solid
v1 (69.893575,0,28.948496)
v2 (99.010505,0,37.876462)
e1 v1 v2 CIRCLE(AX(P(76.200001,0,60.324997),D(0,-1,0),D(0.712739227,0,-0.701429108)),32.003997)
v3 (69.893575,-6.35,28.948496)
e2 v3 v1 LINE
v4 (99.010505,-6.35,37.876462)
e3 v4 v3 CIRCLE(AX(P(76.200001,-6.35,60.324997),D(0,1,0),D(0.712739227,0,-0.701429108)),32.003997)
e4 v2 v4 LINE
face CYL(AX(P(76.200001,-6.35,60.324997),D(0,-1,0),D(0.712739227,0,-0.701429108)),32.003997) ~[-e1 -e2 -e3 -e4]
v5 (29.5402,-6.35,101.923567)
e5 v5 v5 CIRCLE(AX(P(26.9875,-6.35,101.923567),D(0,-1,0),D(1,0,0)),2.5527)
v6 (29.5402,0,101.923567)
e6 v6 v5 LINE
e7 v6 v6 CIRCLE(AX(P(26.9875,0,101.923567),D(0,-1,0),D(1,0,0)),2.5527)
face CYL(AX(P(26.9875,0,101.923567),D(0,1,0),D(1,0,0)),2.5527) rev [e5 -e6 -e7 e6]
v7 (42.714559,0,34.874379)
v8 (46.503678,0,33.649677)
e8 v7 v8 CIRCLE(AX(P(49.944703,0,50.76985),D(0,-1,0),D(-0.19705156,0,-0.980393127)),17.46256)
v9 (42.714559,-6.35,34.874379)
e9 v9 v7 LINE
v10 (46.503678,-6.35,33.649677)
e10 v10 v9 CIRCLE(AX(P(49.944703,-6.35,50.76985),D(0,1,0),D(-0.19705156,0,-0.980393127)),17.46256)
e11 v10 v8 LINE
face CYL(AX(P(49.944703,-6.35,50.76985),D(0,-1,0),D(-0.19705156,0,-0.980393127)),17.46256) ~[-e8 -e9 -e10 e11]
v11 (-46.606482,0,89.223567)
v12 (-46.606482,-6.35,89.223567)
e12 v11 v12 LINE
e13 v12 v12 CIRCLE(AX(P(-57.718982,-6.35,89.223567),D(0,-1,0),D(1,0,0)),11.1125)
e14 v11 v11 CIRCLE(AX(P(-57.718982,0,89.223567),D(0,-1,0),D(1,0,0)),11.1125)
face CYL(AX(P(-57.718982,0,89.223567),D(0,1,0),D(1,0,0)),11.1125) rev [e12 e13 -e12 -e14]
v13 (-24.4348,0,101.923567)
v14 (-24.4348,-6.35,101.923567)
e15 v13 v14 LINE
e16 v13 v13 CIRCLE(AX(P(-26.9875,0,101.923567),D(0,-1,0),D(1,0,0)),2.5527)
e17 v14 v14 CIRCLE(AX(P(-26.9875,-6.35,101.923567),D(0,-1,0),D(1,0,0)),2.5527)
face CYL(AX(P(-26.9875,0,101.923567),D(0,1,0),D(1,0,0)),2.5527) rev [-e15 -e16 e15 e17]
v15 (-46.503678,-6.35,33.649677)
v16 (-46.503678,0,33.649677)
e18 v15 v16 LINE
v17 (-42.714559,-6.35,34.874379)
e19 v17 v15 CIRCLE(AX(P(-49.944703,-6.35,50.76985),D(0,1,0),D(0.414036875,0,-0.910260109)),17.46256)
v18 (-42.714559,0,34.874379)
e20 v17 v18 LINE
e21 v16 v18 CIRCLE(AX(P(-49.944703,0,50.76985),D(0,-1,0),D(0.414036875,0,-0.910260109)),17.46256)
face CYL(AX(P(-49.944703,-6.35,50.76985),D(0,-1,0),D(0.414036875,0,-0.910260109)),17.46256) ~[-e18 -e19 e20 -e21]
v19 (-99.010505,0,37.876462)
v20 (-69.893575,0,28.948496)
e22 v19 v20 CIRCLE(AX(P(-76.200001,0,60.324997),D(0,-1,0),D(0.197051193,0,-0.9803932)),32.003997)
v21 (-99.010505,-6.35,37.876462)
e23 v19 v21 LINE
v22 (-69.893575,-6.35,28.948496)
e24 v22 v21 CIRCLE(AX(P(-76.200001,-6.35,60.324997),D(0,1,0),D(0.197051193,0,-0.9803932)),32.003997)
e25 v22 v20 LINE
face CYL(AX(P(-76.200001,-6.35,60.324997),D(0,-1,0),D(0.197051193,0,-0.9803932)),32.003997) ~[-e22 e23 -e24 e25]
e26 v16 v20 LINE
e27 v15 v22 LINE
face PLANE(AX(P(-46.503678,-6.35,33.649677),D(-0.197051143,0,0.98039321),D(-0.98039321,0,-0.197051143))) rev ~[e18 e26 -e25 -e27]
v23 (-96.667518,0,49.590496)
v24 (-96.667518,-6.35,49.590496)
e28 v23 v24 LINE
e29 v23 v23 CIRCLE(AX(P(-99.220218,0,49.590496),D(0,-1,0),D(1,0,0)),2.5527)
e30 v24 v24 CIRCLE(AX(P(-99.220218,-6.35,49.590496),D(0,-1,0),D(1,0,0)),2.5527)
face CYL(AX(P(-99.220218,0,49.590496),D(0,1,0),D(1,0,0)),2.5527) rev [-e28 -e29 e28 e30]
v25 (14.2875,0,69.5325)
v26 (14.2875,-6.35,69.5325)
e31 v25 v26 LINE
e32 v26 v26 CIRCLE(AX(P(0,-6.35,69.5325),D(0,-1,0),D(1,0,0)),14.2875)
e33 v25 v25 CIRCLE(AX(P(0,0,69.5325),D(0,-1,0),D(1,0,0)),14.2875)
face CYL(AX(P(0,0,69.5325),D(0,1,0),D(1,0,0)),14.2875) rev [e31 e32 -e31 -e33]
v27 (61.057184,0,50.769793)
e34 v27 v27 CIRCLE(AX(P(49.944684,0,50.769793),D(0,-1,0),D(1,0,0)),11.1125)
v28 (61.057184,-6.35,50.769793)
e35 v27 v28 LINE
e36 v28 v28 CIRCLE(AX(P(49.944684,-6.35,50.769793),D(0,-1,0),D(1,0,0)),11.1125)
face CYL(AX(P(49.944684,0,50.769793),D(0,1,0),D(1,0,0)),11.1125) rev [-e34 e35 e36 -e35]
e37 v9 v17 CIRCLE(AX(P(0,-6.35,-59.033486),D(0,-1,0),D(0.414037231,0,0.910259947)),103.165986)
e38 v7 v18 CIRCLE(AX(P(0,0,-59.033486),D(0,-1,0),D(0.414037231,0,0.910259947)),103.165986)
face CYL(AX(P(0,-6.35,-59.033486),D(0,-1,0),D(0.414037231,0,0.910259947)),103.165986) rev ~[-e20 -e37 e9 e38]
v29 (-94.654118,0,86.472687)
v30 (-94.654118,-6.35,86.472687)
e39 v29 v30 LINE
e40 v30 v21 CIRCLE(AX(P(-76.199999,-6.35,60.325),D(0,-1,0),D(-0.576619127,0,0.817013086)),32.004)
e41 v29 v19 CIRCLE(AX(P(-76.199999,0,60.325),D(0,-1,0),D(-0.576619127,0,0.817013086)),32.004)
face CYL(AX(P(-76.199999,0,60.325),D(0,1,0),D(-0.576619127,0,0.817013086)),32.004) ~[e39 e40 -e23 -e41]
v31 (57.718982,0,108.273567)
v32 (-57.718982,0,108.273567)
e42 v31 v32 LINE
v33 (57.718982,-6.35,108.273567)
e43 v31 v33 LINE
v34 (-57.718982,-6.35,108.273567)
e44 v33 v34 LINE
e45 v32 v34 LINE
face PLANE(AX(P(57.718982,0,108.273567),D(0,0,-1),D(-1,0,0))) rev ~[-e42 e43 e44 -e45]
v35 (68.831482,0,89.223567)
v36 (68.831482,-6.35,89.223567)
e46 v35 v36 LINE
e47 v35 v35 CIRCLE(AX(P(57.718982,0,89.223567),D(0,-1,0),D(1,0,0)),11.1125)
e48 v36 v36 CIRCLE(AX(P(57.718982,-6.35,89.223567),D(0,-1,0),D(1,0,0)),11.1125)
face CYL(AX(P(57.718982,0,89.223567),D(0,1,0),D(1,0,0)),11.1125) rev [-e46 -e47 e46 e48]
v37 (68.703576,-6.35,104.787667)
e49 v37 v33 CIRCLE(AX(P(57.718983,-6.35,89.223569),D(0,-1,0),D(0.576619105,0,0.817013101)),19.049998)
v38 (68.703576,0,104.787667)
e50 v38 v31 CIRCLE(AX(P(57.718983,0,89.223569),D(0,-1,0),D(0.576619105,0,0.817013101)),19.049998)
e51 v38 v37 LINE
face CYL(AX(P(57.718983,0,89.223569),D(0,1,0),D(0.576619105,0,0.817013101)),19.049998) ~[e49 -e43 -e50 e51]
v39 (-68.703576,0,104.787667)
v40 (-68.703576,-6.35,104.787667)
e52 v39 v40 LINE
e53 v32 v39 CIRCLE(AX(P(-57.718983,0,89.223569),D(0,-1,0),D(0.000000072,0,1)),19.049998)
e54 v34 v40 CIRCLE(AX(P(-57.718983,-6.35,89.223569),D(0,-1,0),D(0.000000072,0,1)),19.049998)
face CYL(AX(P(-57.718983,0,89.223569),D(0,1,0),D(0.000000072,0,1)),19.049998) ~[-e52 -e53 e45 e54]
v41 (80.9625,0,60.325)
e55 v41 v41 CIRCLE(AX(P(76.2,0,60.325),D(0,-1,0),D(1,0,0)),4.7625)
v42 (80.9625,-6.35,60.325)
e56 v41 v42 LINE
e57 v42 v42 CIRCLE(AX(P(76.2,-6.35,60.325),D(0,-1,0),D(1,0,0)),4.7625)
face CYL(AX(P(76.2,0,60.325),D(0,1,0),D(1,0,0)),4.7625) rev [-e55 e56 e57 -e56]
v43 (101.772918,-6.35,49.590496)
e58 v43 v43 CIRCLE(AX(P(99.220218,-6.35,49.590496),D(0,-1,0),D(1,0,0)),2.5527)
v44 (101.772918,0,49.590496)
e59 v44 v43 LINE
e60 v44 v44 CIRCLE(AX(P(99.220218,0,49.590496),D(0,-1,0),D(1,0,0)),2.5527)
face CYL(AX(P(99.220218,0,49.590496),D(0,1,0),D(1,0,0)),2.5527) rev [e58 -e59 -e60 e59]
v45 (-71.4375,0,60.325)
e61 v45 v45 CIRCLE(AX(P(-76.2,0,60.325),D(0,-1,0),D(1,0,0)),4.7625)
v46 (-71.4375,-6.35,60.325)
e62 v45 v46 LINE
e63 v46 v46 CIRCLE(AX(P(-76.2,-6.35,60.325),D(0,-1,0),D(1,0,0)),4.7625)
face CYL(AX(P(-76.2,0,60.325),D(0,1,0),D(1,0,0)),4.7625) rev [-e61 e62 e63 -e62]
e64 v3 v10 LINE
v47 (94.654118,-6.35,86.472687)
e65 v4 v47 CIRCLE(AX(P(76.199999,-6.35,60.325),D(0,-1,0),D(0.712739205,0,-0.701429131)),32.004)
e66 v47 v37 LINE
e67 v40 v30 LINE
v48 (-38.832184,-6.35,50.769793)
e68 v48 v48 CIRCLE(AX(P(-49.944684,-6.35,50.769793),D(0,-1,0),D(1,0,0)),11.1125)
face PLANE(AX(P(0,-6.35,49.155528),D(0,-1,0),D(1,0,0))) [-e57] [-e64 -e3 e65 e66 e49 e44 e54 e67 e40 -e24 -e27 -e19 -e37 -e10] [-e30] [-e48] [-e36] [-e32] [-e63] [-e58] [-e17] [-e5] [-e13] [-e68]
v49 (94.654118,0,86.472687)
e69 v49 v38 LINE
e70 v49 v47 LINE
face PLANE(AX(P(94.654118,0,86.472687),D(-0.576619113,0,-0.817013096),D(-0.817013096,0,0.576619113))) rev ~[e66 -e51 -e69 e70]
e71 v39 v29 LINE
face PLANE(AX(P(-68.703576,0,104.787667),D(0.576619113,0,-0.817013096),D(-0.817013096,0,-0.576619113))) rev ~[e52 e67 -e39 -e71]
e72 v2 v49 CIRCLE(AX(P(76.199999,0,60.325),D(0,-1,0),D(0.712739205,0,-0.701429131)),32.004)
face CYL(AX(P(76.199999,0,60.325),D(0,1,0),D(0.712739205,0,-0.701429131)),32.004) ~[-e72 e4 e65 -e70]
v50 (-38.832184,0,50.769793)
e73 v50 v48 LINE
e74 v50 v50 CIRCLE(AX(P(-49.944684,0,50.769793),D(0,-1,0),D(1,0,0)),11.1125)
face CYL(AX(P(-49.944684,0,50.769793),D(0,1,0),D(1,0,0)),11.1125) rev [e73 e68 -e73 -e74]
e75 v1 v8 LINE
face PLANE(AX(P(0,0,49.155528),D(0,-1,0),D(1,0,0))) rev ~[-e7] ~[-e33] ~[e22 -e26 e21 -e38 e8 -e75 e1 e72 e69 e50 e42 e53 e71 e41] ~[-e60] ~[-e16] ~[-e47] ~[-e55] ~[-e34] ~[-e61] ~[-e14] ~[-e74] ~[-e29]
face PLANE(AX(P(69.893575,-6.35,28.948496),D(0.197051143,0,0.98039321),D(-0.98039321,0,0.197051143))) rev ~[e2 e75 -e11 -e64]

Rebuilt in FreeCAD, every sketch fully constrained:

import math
import FreeCAD as App
import Part
import Sketcher

V = App.Vector
Q = App.Units.Quantity

doc = App.newDocument("Part")
params = doc.addObject("Spreadsheet::Sheet", "Params")
for row, (alias, value) in enumerate([
    ("sketch1_radius", "1.26 in"),
    ("sketch1_radius2", "0.7499999 in"),
    ("sketch1_diameter", "0.201 in"),
    ("sketch1_diameter2", "0.375 in"),
    ("sketch1_diameter3", "0.875 in"),
    ("pad1_length", "0.25 in"),
    ("sketch2_radius", "1.2599999 in"),
    ("pocket1_length", "1 in"),
], start=1):
    params.set(f"A{row}", alias)
    params.set(f"B{row}", "=" + value)
    params.setAlias(f"B{row}", alias)

body = doc.addObject("PartDesign::Body", "Body")

# Sketch on XZ plane
sketch1 = body.newObject("Sketcher::SketchObject", "Sketch")
sketch1.AttachmentSupport = (doc.getObject("XZ_Plane"), [""])
sketch1.MapMode = "FlatFace"
sketch1.addGeometry([
    Part.ArcOfCircle(Part.Circle(V(-76.199999, 60.325, 0), V(0, 0, 1), 32.004), math.radians(125.2131), math.radians(224.541776)),  # 0
    Part.LineSegment(V(-99.010505, 37.876462, 0), V(-43.757367, -18.267594, 0)),  # 1
    Part.ArcOfCircle(Part.Circle(V(-38.100003, -12.700004, 0), V(0, 0, 1), 7.937495), math.radians(-135.45823), math.radians(-97.317959)),  # 2
    Part.LineSegment(V(-39.111045, -20.572845, 0), V(-3.033135, -25.206036, 0)),  # 3
    Part.ArcOfCircle(Part.Circle(V(0, -1.587514, 0), V(0, 0, 1), 23.812486), math.radians(-97.317977), math.radians(-82.682023)),  # 4
    Part.LineSegment(V(3.033135, -25.206036, 0), V(39.111045, -20.572845, 0)),  # 5
    Part.ArcOfCircle(Part.Circle(V(38.100003, -12.700004, 0), V(0, 0, 1), 7.937495), math.radians(-82.682041), math.radians(-44.54177)),  # 6
    Part.LineSegment(V(43.757367, -18.267594, 0), V(99.010505, 37.876462, 0)),  # 7
    Part.ArcOfCircle(Part.Circle(V(76.199999, 60.325, 0), V(0, 0, 1), 32.004), math.radians(-44.541776), math.radians(54.7869)),  # 8
    Part.LineSegment(V(94.654118, 86.472687, 0), V(68.703576, 104.787667, 0)),  # 9
    Part.ArcOfCircle(Part.Circle(V(57.718983, 89.223569, 0), V(0, 0, 1), 19.049998), math.radians(54.786902), math.radians(90.000004)),  # 10
    Part.LineSegment(V(57.718982, 108.273567, 0), V(-57.718982, 108.273567, 0)),  # 11
    Part.ArcOfCircle(Part.Circle(V(-57.718983, 89.223569, 0), V(0, 0, 1), 19.049998), math.radians(89.999996), math.radians(125.213098)),  # 12
    Part.LineSegment(V(-68.703576, 104.787667, 0), V(-94.654118, 86.472687, 0)),  # 13
    Part.Circle(V(-38.1, -12.7, 0), V(0, 0, 1), 2.5527),  # 14
    Part.Circle(V(-38.1, 12.7, 0), V(0, 0, 1), 2.5527),  # 15
    Part.Circle(V(38.1, -12.7, 0), V(0, 0, 1), 2.5527),  # 16
    Part.Circle(V(38.1, 12.7, 0), V(0, 0, 1), 2.5527),  # 17
    Part.Circle(V(-99.220218, 49.590496, 0), V(0, 0, 1), 2.5527),  # 18
    Part.Circle(V(-76.2, 60.325, 0), V(0, 0, 1), 4.7625),  # 19
    Part.Circle(V(-49.944684, 50.769793, 0), V(0, 0, 1), 11.1125),  # 20
    Part.Circle(V(-57.718982, 89.223567, 0), V(0, 0, 1), 11.1125),  # 21
    Part.Circle(V(-26.9875, 101.923567, 0), V(0, 0, 1), 2.5527),  # 22
    Part.Circle(V(49.944684, 50.769793, 0), V(0, 0, 1), 11.1125),  # 23
    Part.Circle(V(0, 69.5325, 0), V(0, 0, 1), 14.2875),  # 24
    Part.Circle(V(99.220218, 49.590496, 0), V(0, 0, 1), 2.5527),  # 25
    Part.Circle(V(76.2, 60.325, 0), V(0, 0, 1), 4.7625),  # 26
    Part.Circle(V(26.9875, 101.923567, 0), V(0, 0, 1), 2.5527),  # 27
    Part.Circle(V(57.718982, 89.223567, 0), V(0, 0, 1), 11.1125),  # 28
], False)
sketch1.addConstraint([
    Sketcher.Constraint("Tangent", 0, 2, 1, 1),
    Sketcher.Constraint("Tangent", 1, 2, 2, 1),
    Sketcher.Constraint("Tangent", 2, 2, 3, 1),
    Sketcher.Constraint("Tangent", 3, 2, 4, 1),
    Sketcher.Constraint("Tangent", 4, 2, 5, 1),
    Sketcher.Constraint("Tangent", 5, 2, 6, 1),
    Sketcher.Constraint("Tangent", 6, 2, 7, 1),
    Sketcher.Constraint("Tangent", 7, 2, 8, 1),
    Sketcher.Constraint("Tangent", 8, 2, 9, 1),
    Sketcher.Constraint("Tangent", 9, 2, 10, 1),
    Sketcher.Constraint("Tangent", 10, 2, 11, 1),
    Sketcher.Constraint("Tangent", 11, 2, 12, 1),
    Sketcher.Constraint("Tangent", 12, 2, 13, 1),
    Sketcher.Constraint("Tangent", 13, 2, 0, 1),
    Sketcher.Constraint("Horizontal", 11),
    Sketcher.Constraint("Coincident", 14, 3, 2, 3),
    Sketcher.Constraint("Coincident", 16, 3, 6, 3),
    Sketcher.Constraint("Coincident", 19, 3, 0, 3),
    Sketcher.Constraint("Coincident", 21, 3, 12, 3),
    Sketcher.Constraint("Coincident", 26, 3, 8, 3),
    Sketcher.Constraint("Coincident", 28, 3, 10, 3),
    Sketcher.Constraint("Equal", 2, 6),
    Sketcher.Constraint("Equal", 0, 8),
    Sketcher.Constraint("Equal", 10, 12),
    Sketcher.Constraint("Equal", 14, 15),
    Sketcher.Constraint("Equal", 15, 16),
    Sketcher.Constraint("Equal", 16, 17),
    Sketcher.Constraint("Equal", 17, 18),
    Sketcher.Constraint("Equal", 20, 21),
    Sketcher.Constraint("Equal", 18, 22),
    Sketcher.Constraint("Equal", 21, 23),
    Sketcher.Constraint("Equal", 22, 25),
    Sketcher.Constraint("Equal", 19, 26),
    Sketcher.Constraint("Equal", 25, 27),
    Sketcher.Constraint("Equal", 23, 28),
    Sketcher.Constraint("Symmetric", 6, 3, 15, 3, -1, 1),
    Sketcher.Constraint("Symmetric", 2, 3, 17, 3, -1, 1),
    Sketcher.Constraint("Symmetric", 2, 3, 6, 3, -2),
    Sketcher.Constraint("Symmetric", 0, 3, 8, 3, -2),
    Sketcher.Constraint("Symmetric", 20, 3, 23, 3, -2),
    Sketcher.Constraint("Symmetric", 18, 3, 25, 3, -2),
    Sketcher.Constraint("Symmetric", 22, 3, 27, 3, -2),
    Sketcher.Constraint("PointOnObject", 4, 3, -2),
    Sketcher.Constraint("PointOnObject", 24, 3, -2),
    Sketcher.Constraint("Horizontal", 9, 2, 12, 2),
    Sketcher.Constraint("Radius", 0, Q("1.26 in")),
    Sketcher.Constraint("Radius", 10, Q("0.7499999 in")),
    Sketcher.Constraint("Diameter", 14, Q("0.201 in")),
    Sketcher.Constraint("Diameter", 19, Q("0.375 in")),
    Sketcher.Constraint("Diameter", 20, Q("0.875 in")),
    Sketcher.Constraint("Diameter", 24, Q("1.125 in")),
    Sketcher.Constraint("DistanceX", 0, 3, -1, 1, Q("3 in")),
    Sketcher.Constraint("DistanceX", 14, 3, 6, 3, Q("3.0000001 in")),
    Sketcher.Constraint("DistanceY", 14, 3, 15, 3, Q("1 in")),
    Sketcher.Constraint("Radius", 2, Q("0.3124998 in")),
    Sketcher.Constraint("DistanceY", 21, 3, 22, 3, Q("0.5 in")),
    Sketcher.Constraint("DistanceY", -1, 1, 0, 3, Q("2.375 in")),
    Sketcher.Constraint("DistanceX", 22, 3, -1, 1, Q("1.0625 in")),
    Sketcher.Constraint("Distance", 9, Q("1.2505 in")),
    Sketcher.Constraint("DistanceY", -1, 1, 24, 3, Q("2.7375 in")),
    Sketcher.Constraint("Radius", 4, 23.812486),
    Sketcher.Constraint("DistanceY", 2, 3, 18, 3, 62.2905),
    Sketcher.Constraint("DistanceX", 12, 3, 20, 3, 7.774299),
    Sketcher.Constraint("DistanceX", 8, 2, 25, 3, 4.5661),
    Sketcher.Constraint("DistanceY", 28, 3, 9, 2, 15.5641),
    Sketcher.Constraint("DistanceY", 2, 3, 4, 3, 11.11249),
    Sketcher.Constraint("DistanceY", 0, 2, 20, 3, 12.893331),
])
sketch1.setExpression("Constraints[45]", "Params.sketch1_radius")
sketch1.setExpression("Constraints[46]", "Params.sketch1_radius2")
sketch1.setExpression("Constraints[47]", "Params.sketch1_diameter")
sketch1.setExpression("Constraints[48]", "Params.sketch1_diameter2")
sketch1.setExpression("Constraints[49]", "Params.sketch1_diameter3")
pad1 = body.newObject("PartDesign::Pad", "Pad")
pad1.Profile = sketch1
pad1.setExpression("Length", "Params.pad1_length")

# Sketch on XZ plane
sketch2 = body.newObject("Sketcher::SketchObject", "Sketch001")
sketch2.AttachmentSupport = (doc.getObject("XZ_Plane"), [""])
sketch2.MapMode = "FlatFace"
sketch2.AttachmentOffset = App.Placement(V(0, 0, 0.25 * 25.4), App.Rotation())
sketch2.addGeometry([
    Part.ArcOfCircle(Part.Circle(V(-76.200001, 60.324997, 0), V(0, 0, 1), 32.003997), math.radians(-135.458226), math.radians(-78.635426)),  # 0
    Part.LineSegment(V(-99.010505, 37.876462, 0), V(-99.010505, -25.4, 0)),  # 1
    Part.LineSegment(V(-99.010505, -25.4, 0), V(99.010505, -25.4, 0)),  # 2
    Part.LineSegment(V(99.010505, -25.4, 0), V(99.010505, 37.876462, 0)),  # 3
    Part.ArcOfCircle(Part.Circle(V(76.200001, 60.324997, 0), V(0, 0, 1), 32.003997), math.radians(-101.364574), math.radians(-44.541774)),  # 4
    Part.LineSegment(V(69.893575, 28.948496, 0), V(46.503678, 33.649677, 0)),  # 5
    Part.ArcOfCircle(Part.Circle(V(49.944703, 50.76985, 0), V(0, 0, 1), 17.46256), math.radians(-114.458679), math.radians(-101.364595)),  # 6
    Part.ArcOfCircle(Part.Circle(V(0, -59.033486, 0), V(0, 0, 1), 103.165986), math.radians(65.541299), math.radians(114.458701)),  # 7
    Part.ArcOfCircle(Part.Circle(V(-49.944703, 50.76985, 0), V(0, 0, 1), 17.46256), math.radians(-78.635405), math.radians(-65.541321)),  # 8
    Part.LineSegment(V(-46.503678, 33.649677, 0), V(-69.893575, 28.948496, 0)),  # 9
], False)
sketch2.addConstraint([
    Sketcher.Constraint("Coincident", 0, 1, 1, 1),
    Sketcher.Constraint("Coincident", 1, 2, 2, 1),
    Sketcher.Constraint("Coincident", 2, 2, 3, 1),
    Sketcher.Constraint("Coincident", 3, 2, 4, 2),
    Sketcher.Constraint("Tangent", 4, 1, 5, 1),
    Sketcher.Constraint("Tangent", 5, 2, 6, 2),
    Sketcher.Constraint("Tangent", 6, 1, 7, 1),
    Sketcher.Constraint("Tangent", 7, 2, 8, 2),
    Sketcher.Constraint("Tangent", 8, 1, 9, 1),
    Sketcher.Constraint("Tangent", 9, 2, 0, 2),
    Sketcher.Constraint("Vertical", 1),
    Sketcher.Constraint("Horizontal", 2),
    Sketcher.Constraint("Vertical", 3),
    Sketcher.Constraint("Equal", 0, 4),
    Sketcher.Constraint("Equal", 6, 8),
    Sketcher.Constraint("Symmetric", 0, 3, 4, 3, -2),
    Sketcher.Constraint("Symmetric", 6, 3, 8, 3, -2),
    Sketcher.Constraint("Horizontal", 0, 1, 3, 2),
    Sketcher.Constraint("Radius", 0, Q("1.2599999 in")),
    Sketcher.Constraint("DistanceX", 0, 3, -1, 1, Q("3 in")),
    Sketcher.Constraint("DistanceY", 1, 2, -1, 1, Q("1 in")),
    Sketcher.Constraint("DistanceY", -1, 1, 0, 3, Q("2.3749999 in")),
    Sketcher.Constraint("Radius", 6, 17.46256),
    Sketcher.Constraint("Radius", 7, 103.165986),
    Sketcher.Constraint("DistanceX", 2, 1, 2, 2, 198.02101),
    Sketcher.Constraint("DistanceX", 6, 3, 4, 3, 26.255298),
    Sketcher.Constraint("DistanceY", 4, 1, 4, 3, 31.376501),
])
sketch2.setExpression("Constraints[18]", "Params.sketch2_radius")
pocket1 = body.newObject("PartDesign::Pocket", "Pocket")
pocket1.Profile = sketch2
pocket1.setExpression("Length", "Params.pocket1_length")

doc.recompute()
